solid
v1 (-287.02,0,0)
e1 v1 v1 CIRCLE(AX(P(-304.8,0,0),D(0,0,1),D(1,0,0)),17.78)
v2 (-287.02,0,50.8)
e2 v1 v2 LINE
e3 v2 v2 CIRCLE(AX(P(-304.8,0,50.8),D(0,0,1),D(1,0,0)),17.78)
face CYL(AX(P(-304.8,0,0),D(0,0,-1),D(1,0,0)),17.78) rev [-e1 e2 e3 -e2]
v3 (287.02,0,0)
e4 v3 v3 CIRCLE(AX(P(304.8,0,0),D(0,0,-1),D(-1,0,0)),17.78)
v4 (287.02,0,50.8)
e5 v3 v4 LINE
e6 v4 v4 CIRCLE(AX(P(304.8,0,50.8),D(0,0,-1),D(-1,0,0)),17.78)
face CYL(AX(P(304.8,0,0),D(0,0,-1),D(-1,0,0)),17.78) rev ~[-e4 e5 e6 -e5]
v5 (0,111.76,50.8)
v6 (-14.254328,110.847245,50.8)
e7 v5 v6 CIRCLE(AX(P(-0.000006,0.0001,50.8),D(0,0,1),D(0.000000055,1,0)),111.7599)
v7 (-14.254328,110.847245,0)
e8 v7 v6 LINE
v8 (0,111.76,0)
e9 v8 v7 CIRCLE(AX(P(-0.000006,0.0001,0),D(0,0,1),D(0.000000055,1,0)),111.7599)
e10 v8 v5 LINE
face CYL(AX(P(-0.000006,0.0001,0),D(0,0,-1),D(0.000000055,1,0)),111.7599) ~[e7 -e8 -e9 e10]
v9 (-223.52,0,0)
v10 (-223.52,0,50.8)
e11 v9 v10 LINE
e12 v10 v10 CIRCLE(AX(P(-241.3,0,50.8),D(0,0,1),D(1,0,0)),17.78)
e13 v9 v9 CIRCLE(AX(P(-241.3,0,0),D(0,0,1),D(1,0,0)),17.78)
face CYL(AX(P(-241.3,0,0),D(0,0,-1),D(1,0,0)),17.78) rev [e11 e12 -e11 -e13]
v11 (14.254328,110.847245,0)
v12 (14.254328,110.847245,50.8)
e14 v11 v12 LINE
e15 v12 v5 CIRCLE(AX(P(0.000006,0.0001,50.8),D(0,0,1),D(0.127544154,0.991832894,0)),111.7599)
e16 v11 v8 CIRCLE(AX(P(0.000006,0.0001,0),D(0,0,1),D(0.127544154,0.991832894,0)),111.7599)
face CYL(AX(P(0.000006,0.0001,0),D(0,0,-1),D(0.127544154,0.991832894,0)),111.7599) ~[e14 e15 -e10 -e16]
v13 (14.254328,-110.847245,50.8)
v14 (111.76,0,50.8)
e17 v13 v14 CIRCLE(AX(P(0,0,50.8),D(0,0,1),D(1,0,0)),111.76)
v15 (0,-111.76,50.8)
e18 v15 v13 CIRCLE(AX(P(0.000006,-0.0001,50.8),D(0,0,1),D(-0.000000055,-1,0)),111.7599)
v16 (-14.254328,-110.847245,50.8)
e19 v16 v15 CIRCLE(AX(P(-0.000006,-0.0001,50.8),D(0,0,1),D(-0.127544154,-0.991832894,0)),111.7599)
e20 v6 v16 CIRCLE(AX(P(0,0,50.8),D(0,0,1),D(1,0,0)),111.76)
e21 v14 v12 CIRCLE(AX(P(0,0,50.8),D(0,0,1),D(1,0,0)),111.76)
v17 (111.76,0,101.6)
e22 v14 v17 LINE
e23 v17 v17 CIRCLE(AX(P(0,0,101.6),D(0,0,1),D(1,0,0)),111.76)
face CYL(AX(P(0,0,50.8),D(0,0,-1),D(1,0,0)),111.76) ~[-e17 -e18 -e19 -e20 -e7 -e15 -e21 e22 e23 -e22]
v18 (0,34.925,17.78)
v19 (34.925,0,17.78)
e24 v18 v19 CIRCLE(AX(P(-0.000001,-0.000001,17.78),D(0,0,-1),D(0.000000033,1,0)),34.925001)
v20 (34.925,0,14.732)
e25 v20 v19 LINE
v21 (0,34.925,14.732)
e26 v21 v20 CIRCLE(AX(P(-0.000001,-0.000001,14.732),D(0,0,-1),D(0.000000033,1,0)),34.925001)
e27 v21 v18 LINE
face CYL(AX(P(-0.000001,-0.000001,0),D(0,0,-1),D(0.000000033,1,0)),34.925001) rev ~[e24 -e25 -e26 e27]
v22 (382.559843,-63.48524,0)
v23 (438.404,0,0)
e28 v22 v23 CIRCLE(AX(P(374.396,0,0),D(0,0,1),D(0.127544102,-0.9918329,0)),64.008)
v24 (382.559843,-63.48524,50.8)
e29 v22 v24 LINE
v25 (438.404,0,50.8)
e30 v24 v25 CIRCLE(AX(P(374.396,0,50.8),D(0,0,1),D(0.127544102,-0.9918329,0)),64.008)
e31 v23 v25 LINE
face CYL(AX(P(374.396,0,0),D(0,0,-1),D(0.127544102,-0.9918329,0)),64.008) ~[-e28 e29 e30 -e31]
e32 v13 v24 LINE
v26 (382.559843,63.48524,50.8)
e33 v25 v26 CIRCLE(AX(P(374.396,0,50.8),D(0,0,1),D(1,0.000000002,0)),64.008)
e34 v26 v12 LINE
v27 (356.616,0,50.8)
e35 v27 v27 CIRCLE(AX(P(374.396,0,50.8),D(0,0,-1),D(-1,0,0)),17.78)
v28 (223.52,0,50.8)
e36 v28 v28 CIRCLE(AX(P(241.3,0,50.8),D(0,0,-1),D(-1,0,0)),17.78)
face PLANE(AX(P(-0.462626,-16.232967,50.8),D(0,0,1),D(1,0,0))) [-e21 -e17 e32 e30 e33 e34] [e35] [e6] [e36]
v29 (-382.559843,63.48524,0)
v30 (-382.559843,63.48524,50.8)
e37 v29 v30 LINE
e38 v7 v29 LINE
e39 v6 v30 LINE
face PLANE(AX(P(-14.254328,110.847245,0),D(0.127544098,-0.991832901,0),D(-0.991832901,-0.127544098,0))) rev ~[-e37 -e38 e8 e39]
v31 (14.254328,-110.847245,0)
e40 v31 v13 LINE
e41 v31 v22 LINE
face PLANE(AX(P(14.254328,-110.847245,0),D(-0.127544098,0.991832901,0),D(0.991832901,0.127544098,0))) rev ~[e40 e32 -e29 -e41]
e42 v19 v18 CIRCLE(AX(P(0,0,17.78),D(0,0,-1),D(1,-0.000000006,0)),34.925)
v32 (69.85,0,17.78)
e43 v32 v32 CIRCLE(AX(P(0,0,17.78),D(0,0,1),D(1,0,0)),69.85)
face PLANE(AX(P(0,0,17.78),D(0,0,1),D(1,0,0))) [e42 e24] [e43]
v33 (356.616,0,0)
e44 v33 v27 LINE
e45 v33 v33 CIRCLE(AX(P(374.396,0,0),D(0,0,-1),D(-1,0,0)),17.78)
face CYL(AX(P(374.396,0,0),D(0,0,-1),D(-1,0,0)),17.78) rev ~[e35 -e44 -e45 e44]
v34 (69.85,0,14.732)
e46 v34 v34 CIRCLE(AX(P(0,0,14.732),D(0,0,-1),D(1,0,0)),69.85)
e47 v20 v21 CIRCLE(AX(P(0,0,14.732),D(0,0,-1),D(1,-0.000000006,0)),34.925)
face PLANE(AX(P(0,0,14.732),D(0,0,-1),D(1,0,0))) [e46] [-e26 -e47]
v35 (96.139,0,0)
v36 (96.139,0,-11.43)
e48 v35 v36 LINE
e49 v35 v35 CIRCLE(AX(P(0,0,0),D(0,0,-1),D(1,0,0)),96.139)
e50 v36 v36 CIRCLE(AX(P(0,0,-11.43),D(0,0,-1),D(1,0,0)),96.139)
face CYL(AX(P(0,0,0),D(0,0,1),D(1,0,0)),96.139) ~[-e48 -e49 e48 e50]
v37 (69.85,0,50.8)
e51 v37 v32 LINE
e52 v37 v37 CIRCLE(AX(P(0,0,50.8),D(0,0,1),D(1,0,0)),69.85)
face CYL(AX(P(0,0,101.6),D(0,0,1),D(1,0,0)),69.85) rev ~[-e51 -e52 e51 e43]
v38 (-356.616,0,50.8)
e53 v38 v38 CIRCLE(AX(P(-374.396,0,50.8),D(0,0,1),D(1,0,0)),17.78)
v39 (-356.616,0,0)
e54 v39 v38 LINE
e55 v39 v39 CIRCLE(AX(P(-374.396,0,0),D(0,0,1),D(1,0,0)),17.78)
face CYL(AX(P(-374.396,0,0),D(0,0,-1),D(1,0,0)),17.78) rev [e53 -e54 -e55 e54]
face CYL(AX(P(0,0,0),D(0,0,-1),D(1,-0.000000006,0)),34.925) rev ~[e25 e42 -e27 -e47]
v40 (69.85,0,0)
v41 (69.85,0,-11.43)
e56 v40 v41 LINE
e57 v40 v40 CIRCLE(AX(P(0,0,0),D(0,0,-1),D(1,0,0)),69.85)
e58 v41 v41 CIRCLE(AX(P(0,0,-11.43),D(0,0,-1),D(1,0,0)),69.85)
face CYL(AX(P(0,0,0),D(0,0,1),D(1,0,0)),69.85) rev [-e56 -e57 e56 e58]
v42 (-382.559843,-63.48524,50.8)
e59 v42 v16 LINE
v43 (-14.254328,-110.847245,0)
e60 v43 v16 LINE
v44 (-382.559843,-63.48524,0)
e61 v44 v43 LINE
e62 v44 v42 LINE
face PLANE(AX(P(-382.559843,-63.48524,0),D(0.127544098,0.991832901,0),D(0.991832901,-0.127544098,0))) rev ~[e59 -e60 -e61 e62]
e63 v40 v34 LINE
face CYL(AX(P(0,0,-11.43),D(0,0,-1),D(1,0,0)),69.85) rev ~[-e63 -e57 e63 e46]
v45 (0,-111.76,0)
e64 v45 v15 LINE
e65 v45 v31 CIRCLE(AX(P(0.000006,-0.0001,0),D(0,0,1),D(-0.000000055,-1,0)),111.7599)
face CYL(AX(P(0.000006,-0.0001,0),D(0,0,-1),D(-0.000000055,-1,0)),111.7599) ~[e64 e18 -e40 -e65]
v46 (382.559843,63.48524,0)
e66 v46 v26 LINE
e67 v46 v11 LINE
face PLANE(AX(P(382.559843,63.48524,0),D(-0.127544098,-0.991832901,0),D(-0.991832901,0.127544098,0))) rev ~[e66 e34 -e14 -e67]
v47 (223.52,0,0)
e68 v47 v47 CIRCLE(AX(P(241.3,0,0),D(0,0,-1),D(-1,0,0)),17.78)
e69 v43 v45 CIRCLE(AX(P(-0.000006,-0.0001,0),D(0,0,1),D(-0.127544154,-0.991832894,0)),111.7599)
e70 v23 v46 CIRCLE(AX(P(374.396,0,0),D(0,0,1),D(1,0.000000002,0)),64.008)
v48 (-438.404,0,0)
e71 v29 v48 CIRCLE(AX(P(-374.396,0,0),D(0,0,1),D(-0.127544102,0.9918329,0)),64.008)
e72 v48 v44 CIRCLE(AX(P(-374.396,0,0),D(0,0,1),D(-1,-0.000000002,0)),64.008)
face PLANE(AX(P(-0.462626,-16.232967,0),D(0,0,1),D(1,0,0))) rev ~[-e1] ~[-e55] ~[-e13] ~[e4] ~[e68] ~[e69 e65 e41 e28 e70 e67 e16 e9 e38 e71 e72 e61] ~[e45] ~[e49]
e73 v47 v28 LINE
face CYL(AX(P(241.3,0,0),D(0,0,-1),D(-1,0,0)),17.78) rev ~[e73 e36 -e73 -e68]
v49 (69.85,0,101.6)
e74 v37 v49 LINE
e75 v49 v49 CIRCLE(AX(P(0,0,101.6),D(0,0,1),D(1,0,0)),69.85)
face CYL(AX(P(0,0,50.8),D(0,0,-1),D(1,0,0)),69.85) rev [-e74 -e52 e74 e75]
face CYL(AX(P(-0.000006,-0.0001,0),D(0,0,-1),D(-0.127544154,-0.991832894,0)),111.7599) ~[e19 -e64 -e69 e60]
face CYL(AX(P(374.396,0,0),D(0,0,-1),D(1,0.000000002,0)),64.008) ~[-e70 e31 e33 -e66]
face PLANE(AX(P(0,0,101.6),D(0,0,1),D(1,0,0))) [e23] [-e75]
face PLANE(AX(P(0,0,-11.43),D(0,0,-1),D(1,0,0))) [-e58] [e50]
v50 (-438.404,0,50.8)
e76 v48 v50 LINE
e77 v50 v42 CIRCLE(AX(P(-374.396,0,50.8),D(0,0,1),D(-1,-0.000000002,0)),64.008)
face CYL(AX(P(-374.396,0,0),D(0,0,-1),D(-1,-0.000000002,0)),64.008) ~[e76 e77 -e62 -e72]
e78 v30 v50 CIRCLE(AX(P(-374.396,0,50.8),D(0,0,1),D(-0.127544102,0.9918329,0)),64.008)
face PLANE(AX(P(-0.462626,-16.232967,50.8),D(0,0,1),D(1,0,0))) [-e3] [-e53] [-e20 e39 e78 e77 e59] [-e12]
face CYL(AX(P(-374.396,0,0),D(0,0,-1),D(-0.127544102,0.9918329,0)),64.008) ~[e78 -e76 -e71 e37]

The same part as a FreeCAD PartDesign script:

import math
import FreeCAD as App
import Part
import Sketcher

V = App.Vector
Q = App.Units.Quantity

doc = App.newDocument("Part")
body = doc.addObject("PartDesign::Body", "Body")

sketch1 = doc.addObject("Sketcher::SketchObject", "Sketch")
body.addObject(sketch1)
sketch1.AttachmentSupport = (doc.XY_Plane, [""])
sketch1.MapMode = "FlatFace"
sketch1.addGeometry([
    Part.ArcOfCircle(Part.Circle(V(-0.000006, 0.0001, 0), V(0, 0, 1), 111.7599), math.radians(89.999997), math.radians(97.327701)),
    Part.LineSegment(V(-14.254328, 110.847245, 0), V(-382.559843, 63.48524, 0)),
    Part.ArcOfCircle(Part.Circle(V(-374.396, 0, 0), V(0, 0, 1), 64.008), math.radians(97.327698), math.radians(180)),
    Part.ArcOfCircle(Part.Circle(V(-374.396, 0, 0), V(0, 0, 1), 64.008), math.radians(-180), math.radians(-97.327698)),
    Part.LineSegment(V(-382.559843, -63.48524, 0), V(-14.254328, -110.847245, 0)),
    Part.ArcOfCircle(Part.Circle(V(-0.000006, -0.0001, 0), V(0, 0, 1), 111.7599), math.radians(-97.327701), math.radians(-89.999997)),
    Part.ArcOfCircle(Part.Circle(V(0.000006, -0.0001, 0), V(0, 0, 1), 111.7599), math.radians(-90.000003), math.radians(-82.672299)),
    Part.LineSegment(V(14.254328, -110.847245, 0), V(382.559843, -63.48524, 0)),
    Part.ArcOfCircle(Part.Circle(V(374.396, 0, 0), V(0, 0, 1), 64.008), math.radians(-82.672302), math.radians(0)),
    Part.ArcOfCircle(Part.Circle(V(374.396, 0, 0), V(0, 0, 1), 64.008), math.radians(0), math.radians(82.672302)),
    Part.LineSegment(V(382.559843, 63.48524, 0), V(14.254328, 110.847245, 0)),
    Part.ArcOfCircle(Part.Circle(V(0.000006, 0.0001, 0), V(0, 0, 1), 111.7599), math.radians(82.672299), math.radians(90.000003)),
    Part.Circle(V(241.3, 0, 0), V(0, 0, 1), 17.78),
    Part.ArcOfCircle(Part.Circle(V(0, 0, 0), V(0, 0, 1), 34.925), math.radians(90), math.radians(360)),
    Part.ArcOfCircle(Part.Circle(V(-0.000001, -0.000001, 0), V(0, 0, 1), 34.925001), math.radians(0.000002), math.radians(89.999998)),
    Part.Circle(V(304.8, 0, 0), V(0, 0, 1), 17.78),
    Part.Circle(V(374.396, 0, 0), V(0, 0, 1), 17.78),
    Part.Circle(V(-374.396, 0, 0), V(0, 0, 1), 17.78),
    Part.Circle(V(-304.8, 0, 0), V(0, 0, 1), 17.78),
    Part.Circle(V(-241.3, 0, 0), V(0, 0, 1), 17.78),
], False)
sketch1.addConstraint([
    Sketcher.Constraint("Tangent", 0, 2, 1, 1),
    Sketcher.Constraint("Tangent", 1, 2, 2, 1),
    Sketcher.Constraint("Tangent", 2, 2, 3, 1),
    Sketcher.Constraint("Tangent", 3, 2, 4, 1),
    Sketcher.Constraint("Tangent", 4, 2, 5, 1),
    Sketcher.Constraint("Tangent", 5, 2, 6, 1),
    Sketcher.Constraint("Tangent", 6, 2, 7, 1),
    Sketcher.Constraint("Tangent", 7, 2, 8, 1),
    Sketcher.Constraint("Tangent", 8, 2, 9, 1),
    Sketcher.Constraint("Tangent", 9, 2, 10, 1),
    Sketcher.Constraint("Tangent", 10, 2, 11, 1),
    Sketcher.Constraint("Tangent", 11, 2, 0, 1),
    Sketcher.Constraint("Tangent", 13, 1, 14, 2),
    Sketcher.Constraint("Coincident", 14, 1, 13, 2),
    Sketcher.Constraint("Coincident", 13, 3, -1, 1),
    Sketcher.Constraint("Coincident", 16, 3, 8, 3),
    Sketcher.Constraint("Coincident", 17, 3, 2, 3),
    Sketcher.Constraint("Equal", 2, 3),
    Sketcher.Constraint("Equal", 0, 5),
    Sketcher.Constraint("Equal", 5, 6),
    Sketcher.Constraint("Equal", 3, 8),
    Sketcher.Constraint("Equal", 8, 9),
    Sketcher.Constraint("Equal", 6, 11),
    Sketcher.Constraint("Equal", 12, 15),
    Sketcher.Constraint("Equal", 15, 16),
    Sketcher.Constraint("Equal", 16, 17),
    Sketcher.Constraint("Equal", 17, 18),
    Sketcher.Constraint("Equal", 18, 19),
    Sketcher.Constraint("Symmetric", 0, 3, 6, 3, -1, 1),
    Sketcher.Constraint("Symmetric", 2, 3, 8, 3, -1, 1),
    Sketcher.Constraint("Symmetric", 15, 3, 18, 3, -1, 1),
    Sketcher.Constraint("Symmetric", 12, 3, 19, 3, -1, 1),
    Sketcher.Constraint("PointOnObject", 2, 3, -1),
    Sketcher.Constraint("PointOnObject", 12, 3, -1),
    Sketcher.Constraint("PointOnObject", 15, 3, -1),
    Sketcher.Constraint("PointOnObject", 2, 2, -1),
    Sketcher.Constraint("PointOnObject", 5, 2, -2),
    Sketcher.Constraint("PointOnObject", 8, 2, -1),
    Sketcher.Constraint("PointOnObject", 11, 2, -2),
    Sketcher.Constraint("PointOnObject", 13, 1, -2),
    Sketcher.Constraint("PointOnObject", 14, 1, -1),
    Sketcher.Constraint("Vertical", 0, 3, 5, 3),
    Sketcher.Constraint("Diameter", 12, Q("1.4 in")),
    Sketcher.Constraint("Radius", 2, Q("2.52 in")),
    Sketcher.Constraint("DistanceX", -1, 1, 15, 3, Q("12 in")),
    Sketcher.Constraint("Radius", 13, Q("1.375 in")),
    Sketcher.Constraint("DistanceX", -1, 1, 12, 3, Q("9.5 in")),
    Sketcher.Constraint("DistanceY", 5, 2, -1, 1, Q("4.4 in")),
    Sketcher.Constraint("DistanceX", 2, 3, -1, 1, Q("14.74 in")),
    Sketcher.Constraint("Radius", 0, 111.7599),
])
pad1 = doc.addObject("PartDesign::Pad", "Pad")
body.addObject(pad1)
pad1.Profile = sketch1
pad1.Length = Q("2 in")

sketch2 = doc.addObject("Sketcher::SketchObject", "Sketch001")
body.addObject(sketch2)
sketch2.AttachmentSupport = (doc.XY_Plane, [""])
sketch2.MapMode = "FlatFace"
sketch2.AttachmentOffset = App.Placement(V(0, 0, 2 * 25.4), App.Rotation())
sketch2.addGeometry([
    Part.Circle(V(0, 0, 0), V(0, 0, 1), 112),
    Part.Circle(V(0, 0, 0), V(0, 0, 1), 70),
], False)
sketch2.addConstraint([
    Sketcher.Constraint("Coincident", 0, 3, -1, 1),
    Sketcher.Constraint("Coincident", 1, 3, -1, 1),
    Sketcher.Constraint("Diameter", 0, Q("8.8 in")),
    Sketcher.Constraint("Diameter", 1, Q("5.5 in")),
])
pad2 = doc.addObject("PartDesign::Pad", "Pad001")
body.addObject(pad2)
pad2.Profile = sketch2
pad2.Length = Q("2 in")

sketch3 = doc.addObject("Sketcher::SketchObject", "Sketch002")
body.addObject(sketch3)
sketch3.AttachmentSupport = (doc.XY_Plane, [""])
sketch3.MapMode = "FlatFace"
sketch3.AttachmentOffset = App.Placement(V(0, 0, 4 * 25.4), App.Rotation())
sketch3.addGeometry(Part.Circle(V(0, 0, 0), V(0, 0, 1), 70), False)
sketch3.addConstraint([
    Sketcher.Constraint("Coincident", 0, 3, -1, 1),
    Sketcher.Constraint("Diameter", 0, Q("5.5 in")),
])
pocket1 = doc.addObject("PartDesign::Pocket", "Pocket")
body.addObject(pocket1)
pocket1.Profile = sketch3
pocket1.Length = Q("3.3 in")

sketch4 = doc.addObject("Sketcher::SketchObject", "Sketch003")
body.addObject(sketch4)
sketch4.AttachmentSupport = (doc.XY_Plane, [""])
sketch4.MapMode = "FlatFace"
sketch4.addGeometry([
    Part.Circle(V(0, 0, 0), V(0, 0, 1), 96),
    Part.Circle(V(0, 0, 0), V(0, 0, 1), 70),
], False)
sketch4.addConstraint([
    Sketcher.Constraint("Coincident", 0, 3, -1, 1),
    Sketcher.Constraint("Coincident", 1, 3, -1, 1),
    Sketcher.Constraint("Diameter", 1, Q("5.5 in")),
    Sketcher.Constraint("Diameter", 0, Q("7.57 in")),
])
pad3 = doc.addObject("PartDesign::Pad", "Pad002")
body.addObject(pad3)
pad3.Profile = sketch4
pad3.Length = Q("0.45 in")
pad3.Reversed = True

sketch5 = doc.addObject("Sketcher::SketchObject", "Sketch004")
body.addObject(sketch5)
sketch5.AttachmentSupport = (doc.XY_Plane, [""])
sketch5.MapMode = "FlatFace"
sketch5.AttachmentOffset = App.Placement(V(0, 0, -0.45 * 25.4), App.Rotation())
sketch5.addGeometry(Part.Circle(V(0, 0, 0), V(0, 0, 1), 70), False)
sketch5.addConstraint([
    Sketcher.Constraint("Coincident", 0, 3, -1, 1),
    Sketcher.Constraint("Diameter", 0, Q("5.5 in")),
])
pocket2 = doc.addObject("PartDesign::Pocket", "Pocket001")
body.addObject(pocket2)
pocket2.Profile = sketch5
pocket2.Length = Q("1.03 in")
pocket2.Reversed = True

doc.recompute()
